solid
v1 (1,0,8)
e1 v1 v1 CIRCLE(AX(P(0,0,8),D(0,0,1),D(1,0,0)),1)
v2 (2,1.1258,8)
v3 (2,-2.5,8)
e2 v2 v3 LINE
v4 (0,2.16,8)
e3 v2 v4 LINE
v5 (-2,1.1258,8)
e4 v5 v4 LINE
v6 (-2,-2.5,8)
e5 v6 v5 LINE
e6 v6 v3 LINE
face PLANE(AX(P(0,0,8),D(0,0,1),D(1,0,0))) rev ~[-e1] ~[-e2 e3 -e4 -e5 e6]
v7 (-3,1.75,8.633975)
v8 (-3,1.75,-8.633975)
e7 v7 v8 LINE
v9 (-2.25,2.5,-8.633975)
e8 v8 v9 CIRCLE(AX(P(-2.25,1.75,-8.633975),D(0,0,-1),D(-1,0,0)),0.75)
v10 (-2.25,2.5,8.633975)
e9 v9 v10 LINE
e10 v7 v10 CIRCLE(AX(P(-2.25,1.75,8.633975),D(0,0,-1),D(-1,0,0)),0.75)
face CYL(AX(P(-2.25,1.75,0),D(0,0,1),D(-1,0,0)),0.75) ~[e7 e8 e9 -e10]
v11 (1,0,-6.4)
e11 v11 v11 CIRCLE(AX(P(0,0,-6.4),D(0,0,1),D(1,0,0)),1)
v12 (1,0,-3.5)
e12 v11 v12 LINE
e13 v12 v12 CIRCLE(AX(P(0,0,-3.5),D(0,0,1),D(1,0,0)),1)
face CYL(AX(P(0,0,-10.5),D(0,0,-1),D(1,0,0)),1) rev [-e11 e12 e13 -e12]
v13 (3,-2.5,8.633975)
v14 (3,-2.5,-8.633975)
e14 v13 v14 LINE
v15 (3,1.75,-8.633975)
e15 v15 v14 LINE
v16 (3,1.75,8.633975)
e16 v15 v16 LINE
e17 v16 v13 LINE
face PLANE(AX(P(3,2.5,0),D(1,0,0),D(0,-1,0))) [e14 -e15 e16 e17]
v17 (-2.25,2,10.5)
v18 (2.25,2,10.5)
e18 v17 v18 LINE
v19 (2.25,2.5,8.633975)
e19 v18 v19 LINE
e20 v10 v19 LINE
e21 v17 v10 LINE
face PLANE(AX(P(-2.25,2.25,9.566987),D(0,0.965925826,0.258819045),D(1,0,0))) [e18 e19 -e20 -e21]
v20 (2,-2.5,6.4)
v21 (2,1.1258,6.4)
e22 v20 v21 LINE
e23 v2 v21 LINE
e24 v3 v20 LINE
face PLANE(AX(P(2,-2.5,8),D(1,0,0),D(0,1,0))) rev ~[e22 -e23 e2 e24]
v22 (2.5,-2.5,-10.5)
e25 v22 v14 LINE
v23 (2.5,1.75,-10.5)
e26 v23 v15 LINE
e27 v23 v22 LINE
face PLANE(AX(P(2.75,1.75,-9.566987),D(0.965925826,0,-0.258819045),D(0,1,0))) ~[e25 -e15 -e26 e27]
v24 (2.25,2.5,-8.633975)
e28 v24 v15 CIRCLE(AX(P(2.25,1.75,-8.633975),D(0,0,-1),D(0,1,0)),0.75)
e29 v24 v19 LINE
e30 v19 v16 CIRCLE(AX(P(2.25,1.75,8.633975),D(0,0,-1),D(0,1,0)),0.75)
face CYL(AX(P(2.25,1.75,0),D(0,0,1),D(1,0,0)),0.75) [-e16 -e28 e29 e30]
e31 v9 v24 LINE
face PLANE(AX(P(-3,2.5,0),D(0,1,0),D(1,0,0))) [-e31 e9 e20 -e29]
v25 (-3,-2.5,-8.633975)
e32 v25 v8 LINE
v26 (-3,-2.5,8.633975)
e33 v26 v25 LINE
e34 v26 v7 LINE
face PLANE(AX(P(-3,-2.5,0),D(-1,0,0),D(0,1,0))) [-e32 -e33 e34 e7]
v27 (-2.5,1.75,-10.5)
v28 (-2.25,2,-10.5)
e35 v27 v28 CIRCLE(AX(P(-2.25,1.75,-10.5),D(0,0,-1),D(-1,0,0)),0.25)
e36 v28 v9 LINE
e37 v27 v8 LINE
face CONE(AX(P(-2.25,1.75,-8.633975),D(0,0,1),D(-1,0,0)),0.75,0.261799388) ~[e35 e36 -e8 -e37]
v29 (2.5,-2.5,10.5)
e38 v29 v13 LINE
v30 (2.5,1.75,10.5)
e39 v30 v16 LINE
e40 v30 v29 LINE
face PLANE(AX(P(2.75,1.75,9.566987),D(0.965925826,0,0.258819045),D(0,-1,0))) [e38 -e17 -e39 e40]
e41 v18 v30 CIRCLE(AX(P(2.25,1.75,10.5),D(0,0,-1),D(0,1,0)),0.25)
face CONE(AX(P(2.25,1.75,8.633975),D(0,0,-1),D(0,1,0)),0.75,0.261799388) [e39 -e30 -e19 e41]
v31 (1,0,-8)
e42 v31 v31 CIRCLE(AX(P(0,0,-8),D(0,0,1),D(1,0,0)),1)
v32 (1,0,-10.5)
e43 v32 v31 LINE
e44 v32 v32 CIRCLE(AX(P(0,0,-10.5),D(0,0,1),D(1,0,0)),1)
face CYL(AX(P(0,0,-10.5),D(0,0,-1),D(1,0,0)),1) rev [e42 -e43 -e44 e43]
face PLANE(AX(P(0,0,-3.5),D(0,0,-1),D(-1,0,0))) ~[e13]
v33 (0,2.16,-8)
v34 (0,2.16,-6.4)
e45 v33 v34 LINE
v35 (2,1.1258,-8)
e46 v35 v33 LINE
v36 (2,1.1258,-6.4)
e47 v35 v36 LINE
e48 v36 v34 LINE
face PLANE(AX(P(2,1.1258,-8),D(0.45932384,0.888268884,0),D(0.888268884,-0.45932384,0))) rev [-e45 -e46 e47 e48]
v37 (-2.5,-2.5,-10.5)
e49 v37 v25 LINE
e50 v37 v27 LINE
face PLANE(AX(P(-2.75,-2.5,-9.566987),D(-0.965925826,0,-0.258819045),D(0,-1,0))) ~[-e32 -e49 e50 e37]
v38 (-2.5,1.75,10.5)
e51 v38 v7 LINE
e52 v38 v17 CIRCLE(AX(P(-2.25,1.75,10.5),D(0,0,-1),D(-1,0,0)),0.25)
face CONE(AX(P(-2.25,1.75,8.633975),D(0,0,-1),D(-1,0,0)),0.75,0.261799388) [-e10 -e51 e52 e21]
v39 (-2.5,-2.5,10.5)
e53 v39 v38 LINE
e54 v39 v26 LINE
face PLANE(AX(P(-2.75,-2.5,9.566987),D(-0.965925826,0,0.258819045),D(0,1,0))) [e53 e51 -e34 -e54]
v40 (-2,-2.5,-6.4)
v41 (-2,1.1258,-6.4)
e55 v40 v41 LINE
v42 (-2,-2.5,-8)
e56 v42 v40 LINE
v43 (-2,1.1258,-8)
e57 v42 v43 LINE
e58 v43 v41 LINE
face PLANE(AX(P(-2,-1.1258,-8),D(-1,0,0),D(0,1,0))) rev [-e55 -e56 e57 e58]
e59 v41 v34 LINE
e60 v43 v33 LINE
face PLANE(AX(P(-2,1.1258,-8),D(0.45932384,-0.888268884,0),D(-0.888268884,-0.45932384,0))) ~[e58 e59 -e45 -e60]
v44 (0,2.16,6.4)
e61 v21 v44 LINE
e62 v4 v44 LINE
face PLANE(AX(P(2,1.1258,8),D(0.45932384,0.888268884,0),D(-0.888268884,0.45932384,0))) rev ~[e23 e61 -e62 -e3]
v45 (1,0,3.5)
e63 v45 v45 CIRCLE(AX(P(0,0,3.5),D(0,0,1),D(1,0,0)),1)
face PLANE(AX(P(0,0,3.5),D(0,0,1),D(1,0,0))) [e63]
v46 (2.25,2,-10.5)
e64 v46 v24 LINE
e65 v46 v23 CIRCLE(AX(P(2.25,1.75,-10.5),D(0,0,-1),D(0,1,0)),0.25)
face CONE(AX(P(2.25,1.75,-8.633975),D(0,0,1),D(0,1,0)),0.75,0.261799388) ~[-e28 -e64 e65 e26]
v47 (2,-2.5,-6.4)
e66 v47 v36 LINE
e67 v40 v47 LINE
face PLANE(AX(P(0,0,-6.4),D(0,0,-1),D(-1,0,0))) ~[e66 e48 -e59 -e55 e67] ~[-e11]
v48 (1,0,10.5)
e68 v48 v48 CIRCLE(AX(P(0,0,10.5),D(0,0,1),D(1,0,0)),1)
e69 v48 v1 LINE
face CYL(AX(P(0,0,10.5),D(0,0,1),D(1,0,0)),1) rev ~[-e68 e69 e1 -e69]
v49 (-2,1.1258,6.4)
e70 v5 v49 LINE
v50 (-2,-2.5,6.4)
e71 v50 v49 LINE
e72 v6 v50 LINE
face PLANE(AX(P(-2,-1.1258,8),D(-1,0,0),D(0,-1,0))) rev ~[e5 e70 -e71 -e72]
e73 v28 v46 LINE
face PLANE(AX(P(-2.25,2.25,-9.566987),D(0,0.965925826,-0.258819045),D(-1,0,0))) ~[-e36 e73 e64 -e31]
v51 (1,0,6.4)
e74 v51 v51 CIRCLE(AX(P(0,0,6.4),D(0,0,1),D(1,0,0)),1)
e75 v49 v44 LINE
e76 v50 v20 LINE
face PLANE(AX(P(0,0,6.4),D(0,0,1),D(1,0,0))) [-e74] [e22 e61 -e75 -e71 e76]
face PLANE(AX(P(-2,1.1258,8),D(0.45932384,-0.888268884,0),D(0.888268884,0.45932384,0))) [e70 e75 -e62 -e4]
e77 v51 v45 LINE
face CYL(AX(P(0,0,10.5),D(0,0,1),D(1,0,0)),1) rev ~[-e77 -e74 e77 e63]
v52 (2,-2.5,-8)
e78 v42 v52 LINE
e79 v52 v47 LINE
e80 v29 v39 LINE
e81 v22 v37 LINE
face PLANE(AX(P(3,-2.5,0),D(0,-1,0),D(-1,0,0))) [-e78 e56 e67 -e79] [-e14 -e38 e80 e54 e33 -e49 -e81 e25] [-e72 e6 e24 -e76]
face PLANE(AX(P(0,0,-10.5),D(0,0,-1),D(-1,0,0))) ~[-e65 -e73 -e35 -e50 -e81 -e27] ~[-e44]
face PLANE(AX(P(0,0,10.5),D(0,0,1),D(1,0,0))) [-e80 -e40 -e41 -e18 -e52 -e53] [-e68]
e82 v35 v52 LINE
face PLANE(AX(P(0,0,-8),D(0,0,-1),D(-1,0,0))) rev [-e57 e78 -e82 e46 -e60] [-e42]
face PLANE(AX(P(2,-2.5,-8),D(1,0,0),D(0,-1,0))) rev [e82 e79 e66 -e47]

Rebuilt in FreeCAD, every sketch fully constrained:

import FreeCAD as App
import Part
import Sketcher


def edges_at(feature, points):
    """Names of the edges that pass closest to the given points."""
    edges = feature.Shape.Edges
    near = lambda p: min(range(len(edges)), key=lambda i: edges[i].distToShape(Part.Vertex(*p))[0])
    return sorted({f"Edge{near(p) + 1}" for p in points})


def add_polygon(sketch, points):
    """Adds a closed chain of lines whose ends are joined by coincident constraints."""
    first, n = sketch.GeometryCount, len(points)
    for a, b in zip(points, points[1:] + points[:1]):
        sketch.addGeometry(Part.LineSegment(App.Vector(*a, 0), App.Vector(*b, 0)), False)
    for i in range(n):
        sketch.addConstraint(Sketcher.Constraint("Coincident", first + i, 2, first + (i + 1) % n, 1))

doc = App.newDocument("Part")
body = doc.addObject("PartDesign::Body", "Body")

sketch1 = body.newObject("Sketcher::SketchObject", "Sketch")
sketch1.AttachmentSupport = (doc.getObject("XY_Plane"), [""])
sketch1.MapMode = "FlatFace"
add_polygon(sketch1, [(-3, -2.5), (3, -2.5), (3, 2.5), (-3, 2.5)])
sketch1.addConstraint([
    Sketcher.Constraint("Horizontal", 0),
    Sketcher.Constraint("Vertical", 1),
    Sketcher.Constraint("Horizontal", 2),
    Sketcher.Constraint("Vertical", 3),
    Sketcher.Constraint("Symmetric", 0, 2, 2, 2, -1, 1),
    Sketcher.Constraint("DistanceX", 0, 1, 0, 2, 6.0),
    Sketcher.Constraint("DistanceY", 1, 1, 1, 2, 5.0),
])
pad1 = body.newObject("PartDesign::Pad", "Pad")
pad1.Profile = sketch1
pad1.Length = 10.5

sketch2 = body.newObject("Sketcher::SketchObject", "Sketch001")
sketch2.AttachmentSupport = (doc.getObject("XY_Plane"), [""])
sketch2.MapMode = "FlatFace"
sketch2.AttachmentOffset = App.Placement(App.Vector(0, 0, 10.5), App.Rotation())
sketch2.addGeometry(Part.Circle(App.Vector(0, 0, 0), App.Vector(0, 0, 1), 1), False)
sketch2.addConstraint([
    Sketcher.Constraint("Coincident", 0, 3, -1, 1),
    Sketcher.Constraint("Diameter", 0, 2.0),
])
pocket1 = body.newObject("PartDesign::Pocket", "Pocket")
pocket1.Profile = sketch2
pocket1.Length = 7

sketch3 = body.newObject("Sketcher::SketchObject", "Sketch002")
sketch3.AttachmentSupport = (doc.getObject("XY_Plane"), [""])
sketch3.MapMode = "FlatFace"
sketch3.AttachmentOffset = App.Placement(App.Vector(0, 0, 8), App.Rotation())
add_polygon(sketch3, [(2, -2.5), (2, 1.1258), (0, 2.16), (-2, 1.1258), (-2, -2.5)])
sketch3.addConstraint([
    Sketcher.Constraint("Vertical", 0),
    Sketcher.Constraint("Vertical", 3),
    Sketcher.Constraint("Horizontal", 4),
    Sketcher.Constraint("Symmetric", 0, 2, 2, 2, -2),
    Sketcher.Constraint("PointOnObject", 1, 2, -2),
    Sketcher.Constraint("DistanceX", 4, 1, 4, 2, 4.0),
    Sketcher.Constraint("DistanceY", 3, 2, -1, 1, 2.5),
    Sketcher.Constraint("DistanceY", -1, 1, 1, 2, 2.16),
    Sketcher.Constraint("DistanceY", 0, 1, 0, 2, 3.6258),
])
pocket2 = body.newObject("PartDesign::Pocket", "Pocket001")
pocket2.Profile = sketch3
pocket2.Length = 1.6
doc.recompute()

fillet = body.newObject("PartDesign::Fillet", "Fillet")
fillet.Base = (pocket2, edges_at(pocket2, [(-3, 2.5, 5.25), (3, 2.5, 5.25)]))
fillet.Radius = 0.75
doc.recompute()

chamfer = body.newObject("PartDesign::Chamfer", "Chamfer")
chamfer.Base = (fillet, edges_at(fillet, [(3, -0.375, 10.5), (-3, -0.375, 10.5)]))
chamfer.ChamferType = "Distance and Angle"
chamfer.Size = 0.5
chamfer.Angle = 75
doc.recompute()

mirrored = body.newObject("PartDesign::Mirrored", "Mirrored")
mirrored.TransformMode = "Transform body"
mirrored.MirrorPlane = (doc.getObject("XY_Plane"), [""])
body.Tip = mirrored

doc.recompute()
